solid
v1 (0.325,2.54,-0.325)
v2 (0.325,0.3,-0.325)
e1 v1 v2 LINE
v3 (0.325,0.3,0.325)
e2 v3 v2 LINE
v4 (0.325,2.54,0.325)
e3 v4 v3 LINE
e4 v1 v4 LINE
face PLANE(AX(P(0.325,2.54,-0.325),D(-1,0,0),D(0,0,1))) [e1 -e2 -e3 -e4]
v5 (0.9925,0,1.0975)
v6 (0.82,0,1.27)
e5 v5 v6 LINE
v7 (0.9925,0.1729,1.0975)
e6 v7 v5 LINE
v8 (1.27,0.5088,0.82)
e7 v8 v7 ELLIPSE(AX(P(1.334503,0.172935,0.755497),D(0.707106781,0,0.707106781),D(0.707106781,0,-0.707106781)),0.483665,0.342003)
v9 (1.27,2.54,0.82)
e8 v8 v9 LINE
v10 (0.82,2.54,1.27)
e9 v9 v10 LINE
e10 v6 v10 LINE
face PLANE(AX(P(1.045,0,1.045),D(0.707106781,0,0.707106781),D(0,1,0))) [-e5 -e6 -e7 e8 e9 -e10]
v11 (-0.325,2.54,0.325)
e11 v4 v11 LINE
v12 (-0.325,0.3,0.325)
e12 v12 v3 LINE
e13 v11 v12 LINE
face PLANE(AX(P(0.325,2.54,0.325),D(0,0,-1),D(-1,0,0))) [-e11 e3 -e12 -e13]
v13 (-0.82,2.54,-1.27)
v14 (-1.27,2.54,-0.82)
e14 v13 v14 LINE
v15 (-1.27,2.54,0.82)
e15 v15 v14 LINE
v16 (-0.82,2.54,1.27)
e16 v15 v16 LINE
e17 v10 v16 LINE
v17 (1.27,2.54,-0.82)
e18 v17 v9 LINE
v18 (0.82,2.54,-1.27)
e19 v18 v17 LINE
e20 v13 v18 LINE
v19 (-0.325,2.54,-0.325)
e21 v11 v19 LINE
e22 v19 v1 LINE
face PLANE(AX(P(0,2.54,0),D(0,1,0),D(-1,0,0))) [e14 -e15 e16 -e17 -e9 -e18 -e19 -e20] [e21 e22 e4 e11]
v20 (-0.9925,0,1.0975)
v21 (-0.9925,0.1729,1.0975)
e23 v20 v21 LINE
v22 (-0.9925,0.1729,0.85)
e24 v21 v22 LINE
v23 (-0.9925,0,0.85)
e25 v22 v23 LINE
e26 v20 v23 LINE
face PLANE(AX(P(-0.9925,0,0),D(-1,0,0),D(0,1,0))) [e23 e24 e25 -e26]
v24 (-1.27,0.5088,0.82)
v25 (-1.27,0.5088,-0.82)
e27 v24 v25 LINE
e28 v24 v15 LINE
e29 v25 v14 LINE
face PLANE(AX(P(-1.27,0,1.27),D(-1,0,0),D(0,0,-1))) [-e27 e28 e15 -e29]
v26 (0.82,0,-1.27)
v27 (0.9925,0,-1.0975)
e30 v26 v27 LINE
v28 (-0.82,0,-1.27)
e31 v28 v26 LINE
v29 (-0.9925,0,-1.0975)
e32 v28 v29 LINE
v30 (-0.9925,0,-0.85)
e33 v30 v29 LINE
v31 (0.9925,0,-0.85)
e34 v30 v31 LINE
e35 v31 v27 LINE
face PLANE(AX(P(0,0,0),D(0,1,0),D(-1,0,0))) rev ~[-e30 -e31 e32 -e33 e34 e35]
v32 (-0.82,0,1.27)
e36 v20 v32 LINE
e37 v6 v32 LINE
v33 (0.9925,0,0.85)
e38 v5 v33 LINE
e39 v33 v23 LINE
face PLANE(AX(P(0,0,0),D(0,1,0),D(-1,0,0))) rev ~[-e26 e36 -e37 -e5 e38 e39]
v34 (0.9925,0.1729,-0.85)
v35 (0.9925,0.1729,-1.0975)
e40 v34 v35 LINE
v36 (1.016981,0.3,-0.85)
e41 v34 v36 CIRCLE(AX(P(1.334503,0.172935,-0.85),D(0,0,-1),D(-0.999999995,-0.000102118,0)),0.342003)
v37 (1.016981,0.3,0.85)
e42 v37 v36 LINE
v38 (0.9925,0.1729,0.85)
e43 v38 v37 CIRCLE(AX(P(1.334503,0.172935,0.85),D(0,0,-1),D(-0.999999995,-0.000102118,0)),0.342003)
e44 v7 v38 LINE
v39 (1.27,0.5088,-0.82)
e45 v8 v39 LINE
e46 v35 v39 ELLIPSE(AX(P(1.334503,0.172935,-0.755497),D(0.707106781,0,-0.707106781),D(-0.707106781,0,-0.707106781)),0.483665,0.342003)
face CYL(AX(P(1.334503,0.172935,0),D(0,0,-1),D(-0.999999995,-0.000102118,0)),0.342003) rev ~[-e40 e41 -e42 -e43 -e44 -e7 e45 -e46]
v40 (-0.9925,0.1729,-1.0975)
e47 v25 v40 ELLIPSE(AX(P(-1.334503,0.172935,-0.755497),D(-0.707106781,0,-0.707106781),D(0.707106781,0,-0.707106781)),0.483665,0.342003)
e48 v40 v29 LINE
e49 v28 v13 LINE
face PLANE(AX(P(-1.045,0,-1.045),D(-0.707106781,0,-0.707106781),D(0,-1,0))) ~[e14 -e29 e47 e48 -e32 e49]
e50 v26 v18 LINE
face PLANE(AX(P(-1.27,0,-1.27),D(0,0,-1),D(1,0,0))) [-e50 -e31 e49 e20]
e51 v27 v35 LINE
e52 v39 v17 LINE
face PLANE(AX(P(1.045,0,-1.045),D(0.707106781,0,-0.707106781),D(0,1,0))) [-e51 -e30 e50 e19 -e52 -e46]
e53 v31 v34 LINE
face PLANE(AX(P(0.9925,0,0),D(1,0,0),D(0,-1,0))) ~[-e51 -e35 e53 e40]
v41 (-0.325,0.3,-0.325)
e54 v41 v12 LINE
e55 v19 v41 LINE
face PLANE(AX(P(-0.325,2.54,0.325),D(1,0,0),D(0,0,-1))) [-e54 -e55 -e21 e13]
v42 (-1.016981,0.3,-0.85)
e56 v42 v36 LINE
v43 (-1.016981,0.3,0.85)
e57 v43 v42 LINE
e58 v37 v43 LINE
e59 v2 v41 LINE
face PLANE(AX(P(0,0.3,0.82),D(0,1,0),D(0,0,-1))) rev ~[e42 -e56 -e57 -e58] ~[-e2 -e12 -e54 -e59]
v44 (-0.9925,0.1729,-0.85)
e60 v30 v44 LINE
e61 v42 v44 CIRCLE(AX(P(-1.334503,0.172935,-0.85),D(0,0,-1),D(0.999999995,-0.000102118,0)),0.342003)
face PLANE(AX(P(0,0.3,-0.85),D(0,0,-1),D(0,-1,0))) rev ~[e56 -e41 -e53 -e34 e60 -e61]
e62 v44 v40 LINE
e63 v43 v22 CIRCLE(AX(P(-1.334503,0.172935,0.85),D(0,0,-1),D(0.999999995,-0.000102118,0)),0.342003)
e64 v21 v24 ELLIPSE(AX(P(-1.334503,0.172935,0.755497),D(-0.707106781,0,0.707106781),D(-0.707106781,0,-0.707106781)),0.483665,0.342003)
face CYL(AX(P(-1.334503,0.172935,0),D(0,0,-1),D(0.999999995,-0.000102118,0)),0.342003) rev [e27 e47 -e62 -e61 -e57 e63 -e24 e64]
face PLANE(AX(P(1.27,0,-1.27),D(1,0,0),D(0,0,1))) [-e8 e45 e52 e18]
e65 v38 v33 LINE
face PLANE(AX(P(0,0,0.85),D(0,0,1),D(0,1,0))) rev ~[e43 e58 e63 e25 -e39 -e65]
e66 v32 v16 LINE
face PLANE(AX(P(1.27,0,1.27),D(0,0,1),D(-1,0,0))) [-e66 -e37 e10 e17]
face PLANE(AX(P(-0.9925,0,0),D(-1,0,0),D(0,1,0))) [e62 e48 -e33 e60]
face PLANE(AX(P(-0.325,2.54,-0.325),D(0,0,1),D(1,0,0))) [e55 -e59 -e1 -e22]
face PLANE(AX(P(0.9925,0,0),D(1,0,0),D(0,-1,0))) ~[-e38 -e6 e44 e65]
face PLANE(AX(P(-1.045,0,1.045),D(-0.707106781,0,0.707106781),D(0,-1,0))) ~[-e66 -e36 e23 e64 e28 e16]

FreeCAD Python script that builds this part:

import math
import FreeCAD as App
import Part
import Sketcher

V = App.Vector
Q = App.Units.Quantity


def edges_at(feature, points):
    """Names of the edges that pass closest to the given points."""
    edges = feature.Shape.Edges
    near = lambda p: min(range(len(edges)), key=lambda i: edges[i].distToShape(Part.Vertex(*p))[0])
    return sorted({f"Edge{near(p) + 1}" for p in points})

doc = App.newDocument("Part")
body = doc.addObject("PartDesign::Body", "Body")

# Sketch on XZ plane
sketch1 = doc.addObject("Sketcher::SketchObject", "Sketch")
body.addObject(sketch1)
sketch1.AttachmentSupport = (doc.XZ_Plane, [""])
sketch1.MapMode = "FlatFace"
sketch1.addGeometry([
    Part.LineSegment(V(1.27, -1.27, 0), V(-1.27, -1.27, 0)),
    Part.LineSegment(V(-1.27, -1.27, 0), V(-1.27, 1.27, 0)),
    Part.LineSegment(V(-1.27, 1.27, 0), V(1.27, 1.27, 0)),
    Part.LineSegment(V(1.27, 1.27, 0), V(1.27, -1.27, 0)),
], False)
sketch1.addConstraint([
    Sketcher.Constraint("Coincident", 0, 2, 1, 1),
    Sketcher.Constraint("Coincident", 1, 2, 2, 1),
    Sketcher.Constraint("Coincident", 2, 2, 3, 1),
    Sketcher.Constraint("Coincident", 3, 2, 0, 1),
    Sketcher.Constraint("Horizontal", 0),
    Sketcher.Constraint("Vertical", 1),
    Sketcher.Constraint("Horizontal", 2),
    Sketcher.Constraint("Vertical", 3),
    Sketcher.Constraint("Symmetric", 0, 2, 2, 2, -1, 1),
    Sketcher.Constraint("Equal", 2, 1),
    Sketcher.Constraint("DistanceX", 0, 2, 0, 1, Q("0.1 in")),
])
pad1 = doc.addObject("PartDesign::Pad", "Pad")
body.addObject(pad1)
pad1.Profile = sketch1
pad1.Length = Q("0.1 in")
pad1.Reversed = True

# Sketch on XZ plane
sketch2 = doc.addObject("Sketcher::SketchObject", "Sketch001")
body.addObject(sketch2)
sketch2.AttachmentSupport = (doc.XZ_Plane, [""])
sketch2.MapMode = "FlatFace"
sketch2.AttachmentOffset = App.Placement(V(0, 0, -0.1 * 25.4), App.Rotation())
sketch2.addGeometry([
    Part.LineSegment(V(0.325, -0.325, 0), V(-0.325, -0.325, 0)),
    Part.LineSegment(V(-0.325, -0.325, 0), V(-0.325, 0.325, 0)),
    Part.LineSegment(V(-0.325, 0.325, 0), V(0.325, 0.325, 0)),
    Part.LineSegment(V(0.325, 0.325, 0), V(0.325, -0.325, 0)),
], False)
sketch2.addConstraint([
    Sketcher.Constraint("Coincident", 0, 2, 1, 1),
    Sketcher.Constraint("Coincident", 1, 2, 2, 1),
    Sketcher.Constraint("Coincident", 2, 2, 3, 1),
    Sketcher.Constraint("Coincident", 3, 2, 0, 1),
    Sketcher.Constraint("Horizontal", 0),
    Sketcher.Constraint("Vertical", 1),
    Sketcher.Constraint("Horizontal", 2),
    Sketcher.Constraint("Vertical", 3),
    Sketcher.Constraint("Symmetric", 0, 2, 2, 2, -1, 1),
    Sketcher.Constraint("Equal", 2, 1),
    Sketcher.Constraint("DistanceX", 0, 2, 0, 1, Q("0.0256 in")),
])
pocket1 = doc.addObject("PartDesign::Pocket", "Pocket")
body.addObject(pocket1)
pocket1.Profile = sketch2
pocket1.Type = "UpToFirst"
pocket1.Reversed = True
doc.recompute()

chamfer = doc.addObject("PartDesign::Chamfer", "Chamfer")
body.addObject(chamfer)
chamfer.Base = (pocket1, edges_at(pocket1, [
    (1.27, 1.27, 1.27),
    (-1.27, 1.27, 1.27),
    (1.27, 1.27, -1.27),
    (-1.27, 1.27, -1.27),
]))
chamfer.Size = 0.45

# Sketch on YZ plane
sketch3 = doc.addObject("Sketcher::SketchObject", "Sketch002")
body.addObject(sketch3)
sketch3.AttachmentSupport = (doc.YZ_Plane, [""])
sketch3.MapMode = "FlatFace"
sketch3.addGeometry([
    Part.LineSegment(V(0, -0.85, 0), V(0.3, -0.85, 0)),
    Part.LineSegment(V(0.3, -0.85, 0), V(0.3, 0.85, 0)),
    Part.LineSegment(V(0.3, 0.85, 0), V(0, 0.85, 0)),
    Part.LineSegment(V(0, 0.85, 0), V(0, -0.85, 0)),
], False)
sketch3.addConstraint([
    Sketcher.Constraint("Coincident", 0, 2, 1, 1),
    Sketcher.Constraint("Coincident", 1, 2, 2, 1),
    Sketcher.Constraint("Coincident", 2, 2, 3, 1),
    Sketcher.Constraint("Coincident", 3, 2, 0, 1),
    Sketcher.Constraint("Horizontal", 0),
    Sketcher.Constraint("Vertical", 1),
    Sketcher.Constraint("Horizontal", 2),
    Sketcher.Constraint("Vertical", 3),
    Sketcher.Constraint("Symmetric", 2, 2, 3, 2, -1, 1),
    Sketcher.Constraint("DistanceX", 0, 1, 0, 2, Q("0.0118 in")),
    Sketcher.Constraint("DistanceY", 1, 1, 1, 2, Q("1.7 mm")),
])
pocket2 = doc.addObject("PartDesign::Pocket", "Pocket001")
body.addObject(pocket2)
pocket2.Profile = sketch3
pocket2.Length = Q("0.1 in")
pocket2.Midplane = True

# Sketch on XY plane
sketch4 = doc.addObject("Sketcher::SketchObject", "Sketch003")
body.addObject(sketch4)
sketch4.AttachmentSupport = (doc.XY_Plane, [""])
sketch4.MapMode = "FlatFace"
sketch4.addGeometry([
    Part.LineSegment(V(-1.27, 0.5088, 0), V(-1.27, 0.3, 0)),  # 0
    Part.LineSegment(V(-1.27, 0.3, 0), V(-1.24, 0.3, 0)),  # 1
    Part.LineSegment(V(-1.24, 0.3, 0), V(-1.24, 0, 0)),  # 2
    Part.LineSegment(V(-1.24, 0, 0), V(-0.9925, 0, 0)),  # 3
    Part.LineSegment(V(-0.9925, 0, 0), V(-0.9925, 0.1729, 0)),  # 4
    Part.ArcOfCircle(Part.Circle(V(-1.3346, 0.1729, 0), V(0, 0, 1), 0.3421), math.radians(0), math.radians(79.11384)),  # 5
], False)
sketch4.addConstraint([
    Sketcher.Constraint("Coincident", 0, 2, 1, 1),
    Sketcher.Constraint("Coincident", 1, 2, 2, 1),
    Sketcher.Constraint("Coincident", 2, 2, 3, 1),
    Sketcher.Constraint("Coincident", 3, 2, 4, 1),
    Sketcher.Constraint("Tangent", 4, 2, 5, 1),
    Sketcher.Constraint("Coincident", 5, 2, 0, 1),
    Sketcher.Constraint("Vertical", 0),
    Sketcher.Constraint("Horizontal", 1),
    Sketcher.Constraint("Vertical", 2),
    Sketcher.Constraint("Horizontal", 3),
    Sketcher.Constraint("Vertical", 4),
    Sketcher.Constraint("PointOnObject", 2, 2, -1),
    Sketcher.Constraint("DistanceX", 0, 2, -1, 1, Q("0.05 in")),
    Sketcher.Constraint("Radius", 5, Q("0.342 mm")),
    Sketcher.Constraint("DistanceY", 2, 2, 2, 1, Q("0.0118 in")),
    Sketcher.Constraint("DistanceY", 4, 1, 4, 2, Q("0.0068 in")),
    Sketcher.Constraint("DistanceX", 1, 1, 1, 2, Q("0.03 mm")),
    Sketcher.Constraint("DistanceX", 3, 1, 3, 2, Q("0.2475 mm")),
])
pocket3 = doc.addObject("PartDesign::Pocket", "Pocket002")
body.addObject(pocket3)
pocket3.Profile = sketch4
pocket3.Length = Q("0.1 in")
pocket3.Midplane = True
doc.recompute()

mirrored = doc.addObject("PartDesign::Mirrored", "Mirrored")
body.addObject(mirrored)
mirrored.Originals = [pocket3]
mirrored.MirrorPlane = (doc.YZ_Plane, [""])
body.Tip = mirrored

doc.recompute()
